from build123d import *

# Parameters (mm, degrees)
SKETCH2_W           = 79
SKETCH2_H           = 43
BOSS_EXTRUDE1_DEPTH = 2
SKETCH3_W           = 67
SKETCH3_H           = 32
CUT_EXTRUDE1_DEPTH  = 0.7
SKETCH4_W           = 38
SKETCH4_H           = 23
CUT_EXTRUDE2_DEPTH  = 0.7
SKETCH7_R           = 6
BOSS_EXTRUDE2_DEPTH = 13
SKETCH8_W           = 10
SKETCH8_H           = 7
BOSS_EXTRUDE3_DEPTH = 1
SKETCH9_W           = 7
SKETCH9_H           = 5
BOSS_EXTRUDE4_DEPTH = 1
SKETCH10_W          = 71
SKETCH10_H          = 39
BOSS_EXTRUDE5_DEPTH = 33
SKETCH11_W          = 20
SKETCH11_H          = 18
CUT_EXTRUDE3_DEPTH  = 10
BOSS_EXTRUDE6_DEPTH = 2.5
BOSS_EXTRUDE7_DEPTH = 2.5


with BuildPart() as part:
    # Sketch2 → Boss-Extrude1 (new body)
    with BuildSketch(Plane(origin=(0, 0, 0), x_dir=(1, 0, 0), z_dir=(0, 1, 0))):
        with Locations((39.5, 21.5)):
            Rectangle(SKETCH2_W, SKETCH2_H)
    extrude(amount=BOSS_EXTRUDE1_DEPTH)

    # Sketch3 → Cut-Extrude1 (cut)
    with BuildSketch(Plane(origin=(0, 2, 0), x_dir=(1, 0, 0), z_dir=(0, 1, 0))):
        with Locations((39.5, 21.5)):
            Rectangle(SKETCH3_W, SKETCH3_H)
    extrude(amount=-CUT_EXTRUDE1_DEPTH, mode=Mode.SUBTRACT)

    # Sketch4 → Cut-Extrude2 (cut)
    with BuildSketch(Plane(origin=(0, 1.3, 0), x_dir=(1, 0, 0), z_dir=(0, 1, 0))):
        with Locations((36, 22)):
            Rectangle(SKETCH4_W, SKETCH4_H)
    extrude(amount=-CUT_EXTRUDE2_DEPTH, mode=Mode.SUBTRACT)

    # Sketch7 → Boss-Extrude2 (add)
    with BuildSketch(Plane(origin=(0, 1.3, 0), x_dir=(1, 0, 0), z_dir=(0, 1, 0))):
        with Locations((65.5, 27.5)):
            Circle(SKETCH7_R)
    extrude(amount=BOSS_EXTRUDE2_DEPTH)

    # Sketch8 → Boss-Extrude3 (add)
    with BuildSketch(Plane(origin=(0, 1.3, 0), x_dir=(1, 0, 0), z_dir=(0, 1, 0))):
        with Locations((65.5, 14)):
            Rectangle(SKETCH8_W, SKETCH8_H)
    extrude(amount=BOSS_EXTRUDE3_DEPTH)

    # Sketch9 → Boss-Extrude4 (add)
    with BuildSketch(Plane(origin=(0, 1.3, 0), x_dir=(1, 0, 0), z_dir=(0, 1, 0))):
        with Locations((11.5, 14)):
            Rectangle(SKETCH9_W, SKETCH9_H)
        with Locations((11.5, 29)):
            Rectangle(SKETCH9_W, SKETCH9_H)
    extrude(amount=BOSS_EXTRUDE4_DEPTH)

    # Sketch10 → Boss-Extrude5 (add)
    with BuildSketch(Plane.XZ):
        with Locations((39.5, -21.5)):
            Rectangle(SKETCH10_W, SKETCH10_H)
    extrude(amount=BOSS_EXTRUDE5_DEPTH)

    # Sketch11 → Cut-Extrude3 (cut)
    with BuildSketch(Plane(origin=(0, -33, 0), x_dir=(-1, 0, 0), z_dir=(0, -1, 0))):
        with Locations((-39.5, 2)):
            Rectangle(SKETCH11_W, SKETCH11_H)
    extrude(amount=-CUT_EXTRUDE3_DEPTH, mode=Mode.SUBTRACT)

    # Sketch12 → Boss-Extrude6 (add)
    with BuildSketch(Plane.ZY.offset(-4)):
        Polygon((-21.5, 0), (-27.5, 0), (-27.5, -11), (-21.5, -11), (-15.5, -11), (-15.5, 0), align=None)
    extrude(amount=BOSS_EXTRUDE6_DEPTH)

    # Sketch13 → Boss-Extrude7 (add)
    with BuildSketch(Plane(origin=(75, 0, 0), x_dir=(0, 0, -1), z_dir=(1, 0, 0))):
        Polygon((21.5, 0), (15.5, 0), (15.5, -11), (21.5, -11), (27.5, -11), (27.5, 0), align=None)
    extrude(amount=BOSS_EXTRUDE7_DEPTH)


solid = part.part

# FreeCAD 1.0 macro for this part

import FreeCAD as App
import Part
import Sketcher
from FreeCAD import Vector

doc = App.newDocument("Part")
body = doc.addObject("PartDesign::Body", "Body")

sketch1 = doc.addObject("Sketcher::SketchObject", "Sketch")
body.addObject(sketch1)
sketch1.AttachmentSupport = (doc.XZ_Plane, [""])
sketch1.MapMode = "FlatFace"
sketch1.addGeometry([
    Part.LineSegment(Vector(0, -43, 0), Vector(0, 0, 0)),
    Part.LineSegment(Vector(0, 0, 0), Vector(79, 0, 0)),
    Part.LineSegment(Vector(79, 0, 0), Vector(79, -43, 0)),
    Part.LineSegment(Vector(79, -43, 0), Vector(0, -43, 0)),
], False)
sketch1.addConstraint([
    Sketcher.Constraint("Coincident", 0, 2, 1, 1),
    Sketcher.Constraint("Coincident", 1, 2, 2, 1),
    Sketcher.Constraint("Coincident", 2, 2, 3, 1),
    Sketcher.Constraint("Coincident", 3, 2, 0, 1),
    Sketcher.Constraint("Vertical", 0),
    Sketcher.Constraint("Horizontal", 1),
    Sketcher.Constraint("Vertical", 2),
    Sketcher.Constraint("Horizontal", 3),
    Sketcher.Constraint("Coincident", 0, 2, -1, 1),
    Sketcher.Constraint("DistanceX", 1, 1, 1, 2, 79.0),
    Sketcher.Constraint("DistanceY", 0, 1, 0, 2, 43.0),
])
pad1 = doc.addObject("PartDesign::Pad", "Pad")
body.addObject(pad1)
pad1.Profile = sketch1
pad1.Length = 2
pad1.Reversed = True

sketch2 = doc.addObject("Sketcher::SketchObject", "Sketch001")
body.addObject(sketch2)
sketch2.AttachmentSupport = (doc.XZ_Plane, [""])
sketch2.MapMode = "FlatFace"
sketch2.AttachmentOffset = App.Placement(Vector(0, 0, -2), App.Rotation())
sketch2.addGeometry([
    Part.LineSegment(Vector(6, -37.5, 0), Vector(6, -5.5, 0)),
    Part.LineSegment(Vector(6, -5.5, 0), Vector(73, -5.5, 0)),
    Part.LineSegment(Vector(73, -5.5, 0), Vector(73, -37.5, 0)),
    Part.LineSegment(Vector(73, -37.5, 0), Vector(6, -37.5, 0)),
], False)
sketch2.addConstraint([
    Sketcher.Constraint("Coincident", 0, 2, 1, 1),
    Sketcher.Constraint("Coincident", 1, 2, 2, 1),
    Sketcher.Constraint("Coincident", 2, 2, 3, 1),
    Sketcher.Constraint("Coincident", 3, 2, 0, 1),
    Sketcher.Constraint("Vertical", 0),
    Sketcher.Constraint("Horizontal", 1),
    Sketcher.Constraint("Vertical", 2),
    Sketcher.Constraint("Horizontal", 3),
    Sketcher.Constraint("DistanceX", 1, 1, 1, 2, 67.0),
    Sketcher.Constraint("DistanceY", 0, 1, 0, 2, 32.0),
    Sketcher.Constraint("DistanceX", -1, 1, 0, 2, 6.0),
    Sketcher.Constraint("DistanceY", 0, 2, -1, 1, 5.5),
])
pocket1 = doc.addObject("PartDesign::Pocket", "Pocket")
body.addObject(pocket1)
pocket1.Profile = sketch2
pocket1.Length = 0.7
pocket1.Reversed = True

sketch3 = doc.addObject("Sketcher::SketchObject", "Sketch002")
body.addObject(sketch3)
sketch3.AttachmentSupport = (doc.XZ_Plane, [""])
sketch3.MapMode = "FlatFace"
sketch3.AttachmentOffset = App.Placement(Vector(0, 0, -1.3), App.Rotation())
sketch3.addGeometry([
    Part.LineSegment(Vector(17, -33.5, 0), Vector(17, -10.5, 0)),
    Part.LineSegment(Vector(17, -10.5, 0), Vector(55, -10.5, 0)),
    Part.LineSegment(Vector(55, -10.5, 0), Vector(55, -33.5, 0)),
    Part.LineSegment(Vector(55, -33.5, 0), Vector(17, -33.5, 0)),
], False)
sketch3.addConstraint([
    Sketcher.Constraint("Coincident", 0, 2, 1, 1),
    Sketcher.Constraint("Coincident", 1, 2, 2, 1),
    Sketcher.Constraint("Coincident", 2, 2, 3, 1),
    Sketcher.Constraint("Coincident", 3, 2, 0, 1),
    Sketcher.Constraint("Vertical", 0),
    Sketcher.Constraint("Horizontal", 1),
    Sketcher.Constraint("Vertical", 2),
    Sketcher.Constraint("Horizontal", 3),
    Sketcher.Constraint("DistanceX", 1, 1, 1, 2, 38.0),
    Sketcher.Constraint("DistanceY", 0, 1, 0, 2, 23.0),
    Sketcher.Constraint("DistanceX", -1, 1, 0, 2, 17.0),
    Sketcher.Constraint("DistanceY", 0, 2, -1, 1, 10.5),
])
pocket2 = doc.addObject("PartDesign::Pocket", "Pocket001")
body.addObject(pocket2)
pocket2.Profile = sketch3
pocket2.Length = 0.7
pocket2.Reversed = True

sketch4 = doc.addObject("Sketcher::SketchObject", "Sketch003")
body.addObject(sketch4)
sketch4.AttachmentSupport = (doc.XZ_Plane, [""])
sketch4.MapMode = "FlatFace"
sketch4.AttachmentOffset = App.Placement(Vector(0, 0, -1.3), App.Rotation())
sketch4.addGeometry(Part.Circle(Vector(65.5, -27.5, 0), Vector(0, 0, 1), 6), False)
sketch4.addConstraint([
    Sketcher.Constraint("Diameter", 0, 12.0),
    Sketcher.Constraint("DistanceX", -1, 1, 0, 3, 65.5),
    Sketcher.Constraint("DistanceY", 0, 3, -1, 1, 27.5),
])
pad2 = doc.addObject("PartDesign::Pad", "Pad001")
body.addObject(pad2)
pad2.Profile = sketch4
pad2.Length = 13
pad2.Reversed = True

sketch5 = doc.addObject("Sketcher::SketchObject", "Sketch004")
body.addObject(sketch5)
sketch5.AttachmentSupport = (doc.XZ_Plane, [""])
sketch5.MapMode = "FlatFace"
sketch5.AttachmentOffset = App.Placement(Vector(0, 0, -1.3), App.Rotation())
sketch5.addGeometry([
    Part.LineSegment(Vector(60.5, -17.5, 0), Vector(60.5, -10.5, 0)),
    Part.LineSegment(Vector(60.5, -10.5, 0), Vector(70.5, -10.5, 0)),
    Part.LineSegment(Vector(70.5, -10.5, 0), Vector(70.5, -17.5, 0)),
    Part.LineSegment(Vector(70.5, -17.5, 0), Vector(60.5, -17.5, 0)),
], False)
sketch5.addConstraint([
    Sketcher.Constraint("Coincident", 0, 2, 1, 1),
    Sketcher.Constraint("Coincident", 1, 2, 2, 1),
    Sketcher.Constraint("Coincident", 2, 2, 3, 1),
    Sketcher.Constraint("Coincident", 3, 2, 0, 1),
    Sketcher.Constraint("Vertical", 0),
    Sketcher.Constraint("Horizontal", 1),
    Sketcher.Constraint("Vertical", 2),
    Sketcher.Constraint("Horizontal", 3),
    Sketcher.Constraint("DistanceX", 1, 1, 1, 2, 10.0),
    Sketcher.Constraint("DistanceY", 0, 1, 0, 2, 7.0),
    Sketcher.Constraint("DistanceX", -1, 1, 0, 2, 60.5),
    Sketcher.Constraint("DistanceY", 0, 2, -1, 1, 10.5),
])
pad3 = doc.addObject("PartDesign::Pad", "Pad002")
body.addObject(pad3)
pad3.Profile = sketch5
pad3.Length = 1
pad3.Reversed = True

sketch6 = doc.addObject("Sketcher::SketchObject", "Sketch005")
body.addObject(sketch6)
sketch6.AttachmentSupport = (doc.XZ_Plane, [""])
sketch6.MapMode = "FlatFace"
sketch6.AttachmentOffset = App.Placement(Vector(0, 0, -1.3), App.Rotation())
sketch6.addGeometry([
    Part.LineSegment(Vector(8, -16.5, 0), Vector(8, -11.5, 0)),
    Part.LineSegment(Vector(8, -11.5, 0), Vector(15, -11.5, 0)),
    Part.LineSegment(Vector(15, -11.5, 0), Vector(15, -16.5, 0)),
    Part.LineSegment(Vector(15, -16.5, 0), Vector(8, -16.5, 0)),
    Part.LineSegment(Vector(8, -31.5, 0), Vector(8, -26.5, 0)),
    Part.LineSegment(Vector(8, -26.5, 0), Vector(15, -26.5, 0)),
    Part.LineSegment(Vector(15, -26.5, 0), Vector(15, -31.5, 0)),
    Part.LineSegment(Vector(15, -31.5, 0), Vector(8, -31.5, 0)),
], False)
sketch6.addConstraint([
    Sketcher.Constraint("Coincident", 0, 2, 1, 1),
    Sketcher.Constraint("Coincident", 1, 2, 2, 1),
    Sketcher.Constraint("Coincident", 2, 2, 3, 1),
    Sketcher.Constraint("Coincident", 3, 2, 0, 1),
    Sketcher.Constraint("Coincident", 4, 2, 5, 1),
    Sketcher.Constraint("Coincident", 5, 2, 6, 1),
    Sketcher.Constraint("Coincident", 6, 2, 7, 1),
    Sketcher.Constraint("Coincident", 7, 2, 4, 1),
    Sketcher.Constraint("Vertical", 0),
    Sketcher.Constraint("Horizontal", 1),
    Sketcher.Constraint("Vertical", 2),
    Sketcher.Constraint("Horizontal", 3),
    Sketcher.Constraint("Vertical", 4),
    Sketcher.Constraint("Horizontal", 5),
    Sketcher.Constraint("Vertical", 6),
    Sketcher.Constraint("Horizontal", 7),
    Sketcher.Constraint("Vertical", 3, 2, 4, 2),
    Sketcher.Constraint("Vertical", 2, 2, 5, 2),
    Sketcher.Constraint("Equal", 2, 4),
    Sketcher.Constraint("DistanceX", 1, 1, 1, 2, 7.0),
    Sketcher.Constraint("DistanceY", 0, 1, 0, 2, 5.0),
    Sketcher.Constraint("DistanceX", -1, 1, 0, 2, 8.0),
    Sketcher.Constraint("DistanceY", 4, 2, 3, 2, 10.0),
    Sketcher.Constraint("DistanceY", 0, 2, -1, 1, 11.5),
])
pad4 = doc.addObject("PartDesign::Pad", "Pad003")
body.addObject(pad4)
pad4.Profile = sketch6
pad4.Length = 1
pad4.Reversed = True

sketch7 = doc.addObject("Sketcher::SketchObject", "Sketch006")
body.addObject(sketch7)
sketch7.AttachmentSupport = (doc.XZ_Plane, [""])
sketch7.MapMode = "FlatFace"
sketch7.addGeometry([
    Part.LineSegment(Vector(4, -2, 0), Vector(4, -41, 0)),
    Part.LineSegment(Vector(4, -41, 0), Vector(75, -41, 0)),
    Part.LineSegment(Vector(75, -41, 0), Vector(75, -2, 0)),
    Part.LineSegment(Vector(75, -2, 0), Vector(4, -2, 0)),
], False)
sketch7.addConstraint([
    Sketcher.Constraint("Coincident", 0, 2, 1, 1),
    Sketcher.Constraint("Coincident", 1, 2, 2, 1),
    Sketcher.Constraint("Coincident", 2, 2, 3, 1),
    Sketcher.Constraint("Coincident", 3, 2, 0, 1),
    Sketcher.Constraint("Vertical", 0),
    Sketcher.Constraint("Horizontal", 1),
    Sketcher.Constraint("Vertical", 2),
    Sketcher.Constraint("Horizontal", 3),
    Sketcher.Constraint("DistanceX", 1, 1, 1, 2, 71.0),
    Sketcher.Constraint("DistanceY", 0, 2, 0, 1, 39.0),
    Sketcher.Constraint("DistanceX", -1, 1, 0, 2, 4.0),
    Sketcher.Constraint("DistanceY", 0, 2, -1, 1, 41.0),
])
pad5 = doc.addObject("PartDesign::Pad", "Pad004")
body.addObject(pad5)
pad5.Profile = sketch7
pad5.Length = 33

sketch8 = doc.addObject("Sketcher::SketchObject", "Sketch007")
body.addObject(sketch8)
sketch8.AttachmentSupport = (doc.XZ_Plane, [""])
sketch8.MapMode = "FlatFace"
sketch8.AttachmentOffset = App.Placement(Vector(0, 0, 33), App.Rotation())
sketch8.addGeometry([
    Part.LineSegment(Vector(49.5, -11, 0), Vector(49.5, 7, 0)),
    Part.LineSegment(Vector(49.5, 7, 0), Vector(29.5, 7, 0)),
    Part.LineSegment(Vector(29.5, 7, 0), Vector(29.5, -11, 0)),
    Part.LineSegment(Vector(29.5, -11, 0), Vector(49.5, -11, 0)),
], False)
sketch8.addConstraint([
    Sketcher.Constraint("Coincident", 0, 2, 1, 1),
    Sketcher.Constraint("Coincident", 1, 2, 2, 1),
    Sketcher.Constraint("Coincident", 2, 2, 3, 1),
    Sketcher.Constraint("Coincident", 3, 2, 0, 1),
    Sketcher.Constraint("Vertical", 0),
    Sketcher.Constraint("Horizontal", 1),
    Sketcher.Constraint("Vertical", 2),
    Sketcher.Constraint("Horizontal", 3),
    Sketcher.Constraint("DistanceX", 1, 2, 1, 1, 20.0),
    Sketcher.Constraint("DistanceY", 0, 1, 0, 2, 18.0),
    Sketcher.Constraint("DistanceY", -1, 1, 0, 2, 7.0),
    Sketcher.Constraint("DistanceX", -1, 1, 0, 2, 49.5),
])
pocket3 = doc.addObject("PartDesign::Pocket", "Pocket002")
body.addObject(pocket3)
pocket3.Profile = sketch8
pocket3.Length = 10

sketch9 = doc.addObject("Sketcher::SketchObject", "Sketch008")
body.addObject(sketch9)
sketch9.AttachmentSupport = (doc.YZ_Plane, [""])
sketch9.MapMode = "FlatFace"
sketch9.AttachmentOffset = App.Placement(Vector(0, 0, 4), App.Rotation())
sketch9.addGeometry([
    Part.LineSegment(Vector(0, -27.5, 0), Vector(-11, -27.5, 0)),
    Part.LineSegment(Vector(-11, -27.5, 0), Vector(-11, -15.5, 0)),
    Part.LineSegment(Vector(-11, -15.5, 0), Vector(0, -15.5, 0)),
    Part.LineSegment(Vector(0, -15.5, 0), Vector(0, -27.5, 0)),
], False)
sketch9.addConstraint([
    Sketcher.Constraint("Coincident", 0, 2, 1, 1),
    Sketcher.Constraint("Coincident", 1, 2, 2, 1),
    Sketcher.Constraint("Coincident", 2, 2, 3, 1),
    Sketcher.Constraint("Coincident", 3, 2, 0, 1),
    Sketcher.Constraint("Horizontal", 0),
    Sketcher.Constraint("Vertical", 1),
    Sketcher.Constraint("Horizontal", 2),
    Sketcher.Constraint("Vertical", 3),
    Sketcher.Constraint("PointOnObject", 2, 2, -2),
    Sketcher.Constraint("DistanceX", 0, 2, 0, 1, 11.0),
    Sketcher.Constraint("DistanceY", 1, 1, 1, 2, 12.0),
    Sketcher.Constraint("DistanceY", 0, 2, -1, 1, 27.5),
])
pad6 = doc.addObject("PartDesign::Pad", "Pad005")
body.addObject(pad6)
pad6.Profile = sketch9
pad6.Length = 2.5
pad6.Reversed = True

sketch10 = doc.addObject("Sketcher::SketchObject", "Sketch009")
body.addObject(sketch10)
sketch10.AttachmentSupport = (doc.YZ_Plane, [""])
sketch10.MapMode = "FlatFace"
sketch10.AttachmentOffset = App.Placement(Vector(0, 0, 75), App.Rotation())
sketch10.addGeometry([
    Part.LineSegment(Vector(0, -15.5, 0), Vector(-11, -15.5, 0)),
    Part.LineSegment(Vector(-11, -15.5, 0), Vector(-11, -27.5, 0)),
    Part.LineSegment(Vector(-11, -27.5, 0), Vector(0, -27.5, 0)),
    Part.LineSegment(Vector(0, -27.5, 0), Vector(0, -15.5, 0)),
], False)
sketch10.addConstraint([
    Sketcher.Constraint("Coincident", 0, 2, 1, 1),
    Sketcher.Constraint("Coincident", 1, 2, 2, 1),
    Sketcher.Constraint("Coincident", 2, 2, 3, 1),
    Sketcher.Constraint("Coincident", 3, 2, 0, 1),
    Sketcher.Constraint("Horizontal", 0),
    Sketcher.Constraint("Vertical", 1),
    Sketcher.Constraint("Horizontal", 2),
    Sketcher.Constraint("Vertical", 3),
    Sketcher.Constraint("PointOnObject", 2, 2, -2),
    Sketcher.Constraint("DistanceX", 0, 2, 0, 1, 11.0),
    Sketcher.Constraint("DistanceY", 1, 2, 1, 1, 12.0),
    Sketcher.Constraint("DistanceY", 0, 2, -1, 1, 15.5),
])
pad7 = doc.addObject("PartDesign::Pad", "Pad006")
body.addObject(pad7)
pad7.Profile = sketch10
pad7.Length = 2.5

doc.recompute()
